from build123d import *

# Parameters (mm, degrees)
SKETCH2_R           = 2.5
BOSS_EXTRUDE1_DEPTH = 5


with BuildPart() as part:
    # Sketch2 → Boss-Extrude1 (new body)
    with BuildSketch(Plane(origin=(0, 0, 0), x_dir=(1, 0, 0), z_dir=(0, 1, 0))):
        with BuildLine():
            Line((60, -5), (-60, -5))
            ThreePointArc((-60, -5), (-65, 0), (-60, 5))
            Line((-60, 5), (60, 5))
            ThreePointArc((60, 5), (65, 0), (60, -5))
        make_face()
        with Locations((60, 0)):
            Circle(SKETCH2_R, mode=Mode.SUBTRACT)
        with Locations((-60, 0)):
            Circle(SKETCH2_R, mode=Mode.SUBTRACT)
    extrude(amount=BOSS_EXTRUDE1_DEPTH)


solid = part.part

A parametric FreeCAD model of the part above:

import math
import FreeCAD as App
import Part
import Sketcher
Q = App.Units.Quantity

doc = App.newDocument("Part")
body = doc.addObject("PartDesign::Body", "Body")

sketch1 = body.newObject("Sketcher::SketchObject", "Sketch")
sketch1.AttachmentSupport = (doc.getObject("XZ_Plane"), [""])
sketch1.MapMode = "FlatFace"
sketch1.addGeometry(Part.LineSegment(App.Vector(-60, 5, 0), App.Vector(60, 5, 0)), False)
sketch1.addGeometry(Part.ArcOfCircle(Part.Circle(App.Vector(60, 0, 0), App.Vector(0, 0, 1), 5), math.radians(-90), math.radians(90)), False)
sketch1.addGeometry(Part.LineSegment(App.Vector(60, -5, 0), App.Vector(-60, -5, 0)), False)
sketch1.addGeometry(Part.ArcOfCircle(Part.Circle(App.Vector(-60, 0, 0), App.Vector(0, 0, 1), 5), math.radians(90), math.radians(270)), False)
sketch1.addGeometry(Part.Circle(App.Vector(60, 0, 0), App.Vector(0, 0, 1), 2.5), False)
sketch1.addGeometry(Part.Circle(App.Vector(-60, 0, 0), App.Vector(0, 0, 1), 2.5), False)
sketch1.addConstraint(Sketcher.Constraint("Tangent", 0, 2, 1, 2))
sketch1.addConstraint(Sketcher.Constraint("Tangent", 1, 1, 2, 1))
sketch1.addConstraint(Sketcher.Constraint("Tangent", 2, 2, 3, 2))
sketch1.addConstraint(Sketcher.Constraint("Tangent", 3, 1, 0, 1))
sketch1.addConstraint(Sketcher.Constraint("Horizontal", 0))
sketch1.addConstraint(Sketcher.Constraint("Horizontal", 2))
sketch1.addConstraint(Sketcher.Constraint("Coincident", 4, 3, 1, 3))
sketch1.addConstraint(Sketcher.Constraint("Coincident", 5, 3, 3, 3))
sketch1.addConstraint(Sketcher.Constraint("Equal", 4, 5))
sketch1.addConstraint(Sketcher.Constraint("Symmetric", 1, 3, 3, 3, -1, 1))
sketch1.addConstraint(Sketcher.Constraint("Diameter", 4, Q("5 mm")))
sketch1.addConstraint(Sketcher.Constraint("Radius", 1, Q("5 mm")))
sketch1.addConstraint(Sketcher.Constraint("DistanceX", 0, 1, 0, 2, Q("120 mm")))
pad1 = body.newObject("PartDesign::Pad", "Pad")
pad1.Profile = sketch1
pad1.Length = 5
pad1.Reversed = True

doc.recompute()
